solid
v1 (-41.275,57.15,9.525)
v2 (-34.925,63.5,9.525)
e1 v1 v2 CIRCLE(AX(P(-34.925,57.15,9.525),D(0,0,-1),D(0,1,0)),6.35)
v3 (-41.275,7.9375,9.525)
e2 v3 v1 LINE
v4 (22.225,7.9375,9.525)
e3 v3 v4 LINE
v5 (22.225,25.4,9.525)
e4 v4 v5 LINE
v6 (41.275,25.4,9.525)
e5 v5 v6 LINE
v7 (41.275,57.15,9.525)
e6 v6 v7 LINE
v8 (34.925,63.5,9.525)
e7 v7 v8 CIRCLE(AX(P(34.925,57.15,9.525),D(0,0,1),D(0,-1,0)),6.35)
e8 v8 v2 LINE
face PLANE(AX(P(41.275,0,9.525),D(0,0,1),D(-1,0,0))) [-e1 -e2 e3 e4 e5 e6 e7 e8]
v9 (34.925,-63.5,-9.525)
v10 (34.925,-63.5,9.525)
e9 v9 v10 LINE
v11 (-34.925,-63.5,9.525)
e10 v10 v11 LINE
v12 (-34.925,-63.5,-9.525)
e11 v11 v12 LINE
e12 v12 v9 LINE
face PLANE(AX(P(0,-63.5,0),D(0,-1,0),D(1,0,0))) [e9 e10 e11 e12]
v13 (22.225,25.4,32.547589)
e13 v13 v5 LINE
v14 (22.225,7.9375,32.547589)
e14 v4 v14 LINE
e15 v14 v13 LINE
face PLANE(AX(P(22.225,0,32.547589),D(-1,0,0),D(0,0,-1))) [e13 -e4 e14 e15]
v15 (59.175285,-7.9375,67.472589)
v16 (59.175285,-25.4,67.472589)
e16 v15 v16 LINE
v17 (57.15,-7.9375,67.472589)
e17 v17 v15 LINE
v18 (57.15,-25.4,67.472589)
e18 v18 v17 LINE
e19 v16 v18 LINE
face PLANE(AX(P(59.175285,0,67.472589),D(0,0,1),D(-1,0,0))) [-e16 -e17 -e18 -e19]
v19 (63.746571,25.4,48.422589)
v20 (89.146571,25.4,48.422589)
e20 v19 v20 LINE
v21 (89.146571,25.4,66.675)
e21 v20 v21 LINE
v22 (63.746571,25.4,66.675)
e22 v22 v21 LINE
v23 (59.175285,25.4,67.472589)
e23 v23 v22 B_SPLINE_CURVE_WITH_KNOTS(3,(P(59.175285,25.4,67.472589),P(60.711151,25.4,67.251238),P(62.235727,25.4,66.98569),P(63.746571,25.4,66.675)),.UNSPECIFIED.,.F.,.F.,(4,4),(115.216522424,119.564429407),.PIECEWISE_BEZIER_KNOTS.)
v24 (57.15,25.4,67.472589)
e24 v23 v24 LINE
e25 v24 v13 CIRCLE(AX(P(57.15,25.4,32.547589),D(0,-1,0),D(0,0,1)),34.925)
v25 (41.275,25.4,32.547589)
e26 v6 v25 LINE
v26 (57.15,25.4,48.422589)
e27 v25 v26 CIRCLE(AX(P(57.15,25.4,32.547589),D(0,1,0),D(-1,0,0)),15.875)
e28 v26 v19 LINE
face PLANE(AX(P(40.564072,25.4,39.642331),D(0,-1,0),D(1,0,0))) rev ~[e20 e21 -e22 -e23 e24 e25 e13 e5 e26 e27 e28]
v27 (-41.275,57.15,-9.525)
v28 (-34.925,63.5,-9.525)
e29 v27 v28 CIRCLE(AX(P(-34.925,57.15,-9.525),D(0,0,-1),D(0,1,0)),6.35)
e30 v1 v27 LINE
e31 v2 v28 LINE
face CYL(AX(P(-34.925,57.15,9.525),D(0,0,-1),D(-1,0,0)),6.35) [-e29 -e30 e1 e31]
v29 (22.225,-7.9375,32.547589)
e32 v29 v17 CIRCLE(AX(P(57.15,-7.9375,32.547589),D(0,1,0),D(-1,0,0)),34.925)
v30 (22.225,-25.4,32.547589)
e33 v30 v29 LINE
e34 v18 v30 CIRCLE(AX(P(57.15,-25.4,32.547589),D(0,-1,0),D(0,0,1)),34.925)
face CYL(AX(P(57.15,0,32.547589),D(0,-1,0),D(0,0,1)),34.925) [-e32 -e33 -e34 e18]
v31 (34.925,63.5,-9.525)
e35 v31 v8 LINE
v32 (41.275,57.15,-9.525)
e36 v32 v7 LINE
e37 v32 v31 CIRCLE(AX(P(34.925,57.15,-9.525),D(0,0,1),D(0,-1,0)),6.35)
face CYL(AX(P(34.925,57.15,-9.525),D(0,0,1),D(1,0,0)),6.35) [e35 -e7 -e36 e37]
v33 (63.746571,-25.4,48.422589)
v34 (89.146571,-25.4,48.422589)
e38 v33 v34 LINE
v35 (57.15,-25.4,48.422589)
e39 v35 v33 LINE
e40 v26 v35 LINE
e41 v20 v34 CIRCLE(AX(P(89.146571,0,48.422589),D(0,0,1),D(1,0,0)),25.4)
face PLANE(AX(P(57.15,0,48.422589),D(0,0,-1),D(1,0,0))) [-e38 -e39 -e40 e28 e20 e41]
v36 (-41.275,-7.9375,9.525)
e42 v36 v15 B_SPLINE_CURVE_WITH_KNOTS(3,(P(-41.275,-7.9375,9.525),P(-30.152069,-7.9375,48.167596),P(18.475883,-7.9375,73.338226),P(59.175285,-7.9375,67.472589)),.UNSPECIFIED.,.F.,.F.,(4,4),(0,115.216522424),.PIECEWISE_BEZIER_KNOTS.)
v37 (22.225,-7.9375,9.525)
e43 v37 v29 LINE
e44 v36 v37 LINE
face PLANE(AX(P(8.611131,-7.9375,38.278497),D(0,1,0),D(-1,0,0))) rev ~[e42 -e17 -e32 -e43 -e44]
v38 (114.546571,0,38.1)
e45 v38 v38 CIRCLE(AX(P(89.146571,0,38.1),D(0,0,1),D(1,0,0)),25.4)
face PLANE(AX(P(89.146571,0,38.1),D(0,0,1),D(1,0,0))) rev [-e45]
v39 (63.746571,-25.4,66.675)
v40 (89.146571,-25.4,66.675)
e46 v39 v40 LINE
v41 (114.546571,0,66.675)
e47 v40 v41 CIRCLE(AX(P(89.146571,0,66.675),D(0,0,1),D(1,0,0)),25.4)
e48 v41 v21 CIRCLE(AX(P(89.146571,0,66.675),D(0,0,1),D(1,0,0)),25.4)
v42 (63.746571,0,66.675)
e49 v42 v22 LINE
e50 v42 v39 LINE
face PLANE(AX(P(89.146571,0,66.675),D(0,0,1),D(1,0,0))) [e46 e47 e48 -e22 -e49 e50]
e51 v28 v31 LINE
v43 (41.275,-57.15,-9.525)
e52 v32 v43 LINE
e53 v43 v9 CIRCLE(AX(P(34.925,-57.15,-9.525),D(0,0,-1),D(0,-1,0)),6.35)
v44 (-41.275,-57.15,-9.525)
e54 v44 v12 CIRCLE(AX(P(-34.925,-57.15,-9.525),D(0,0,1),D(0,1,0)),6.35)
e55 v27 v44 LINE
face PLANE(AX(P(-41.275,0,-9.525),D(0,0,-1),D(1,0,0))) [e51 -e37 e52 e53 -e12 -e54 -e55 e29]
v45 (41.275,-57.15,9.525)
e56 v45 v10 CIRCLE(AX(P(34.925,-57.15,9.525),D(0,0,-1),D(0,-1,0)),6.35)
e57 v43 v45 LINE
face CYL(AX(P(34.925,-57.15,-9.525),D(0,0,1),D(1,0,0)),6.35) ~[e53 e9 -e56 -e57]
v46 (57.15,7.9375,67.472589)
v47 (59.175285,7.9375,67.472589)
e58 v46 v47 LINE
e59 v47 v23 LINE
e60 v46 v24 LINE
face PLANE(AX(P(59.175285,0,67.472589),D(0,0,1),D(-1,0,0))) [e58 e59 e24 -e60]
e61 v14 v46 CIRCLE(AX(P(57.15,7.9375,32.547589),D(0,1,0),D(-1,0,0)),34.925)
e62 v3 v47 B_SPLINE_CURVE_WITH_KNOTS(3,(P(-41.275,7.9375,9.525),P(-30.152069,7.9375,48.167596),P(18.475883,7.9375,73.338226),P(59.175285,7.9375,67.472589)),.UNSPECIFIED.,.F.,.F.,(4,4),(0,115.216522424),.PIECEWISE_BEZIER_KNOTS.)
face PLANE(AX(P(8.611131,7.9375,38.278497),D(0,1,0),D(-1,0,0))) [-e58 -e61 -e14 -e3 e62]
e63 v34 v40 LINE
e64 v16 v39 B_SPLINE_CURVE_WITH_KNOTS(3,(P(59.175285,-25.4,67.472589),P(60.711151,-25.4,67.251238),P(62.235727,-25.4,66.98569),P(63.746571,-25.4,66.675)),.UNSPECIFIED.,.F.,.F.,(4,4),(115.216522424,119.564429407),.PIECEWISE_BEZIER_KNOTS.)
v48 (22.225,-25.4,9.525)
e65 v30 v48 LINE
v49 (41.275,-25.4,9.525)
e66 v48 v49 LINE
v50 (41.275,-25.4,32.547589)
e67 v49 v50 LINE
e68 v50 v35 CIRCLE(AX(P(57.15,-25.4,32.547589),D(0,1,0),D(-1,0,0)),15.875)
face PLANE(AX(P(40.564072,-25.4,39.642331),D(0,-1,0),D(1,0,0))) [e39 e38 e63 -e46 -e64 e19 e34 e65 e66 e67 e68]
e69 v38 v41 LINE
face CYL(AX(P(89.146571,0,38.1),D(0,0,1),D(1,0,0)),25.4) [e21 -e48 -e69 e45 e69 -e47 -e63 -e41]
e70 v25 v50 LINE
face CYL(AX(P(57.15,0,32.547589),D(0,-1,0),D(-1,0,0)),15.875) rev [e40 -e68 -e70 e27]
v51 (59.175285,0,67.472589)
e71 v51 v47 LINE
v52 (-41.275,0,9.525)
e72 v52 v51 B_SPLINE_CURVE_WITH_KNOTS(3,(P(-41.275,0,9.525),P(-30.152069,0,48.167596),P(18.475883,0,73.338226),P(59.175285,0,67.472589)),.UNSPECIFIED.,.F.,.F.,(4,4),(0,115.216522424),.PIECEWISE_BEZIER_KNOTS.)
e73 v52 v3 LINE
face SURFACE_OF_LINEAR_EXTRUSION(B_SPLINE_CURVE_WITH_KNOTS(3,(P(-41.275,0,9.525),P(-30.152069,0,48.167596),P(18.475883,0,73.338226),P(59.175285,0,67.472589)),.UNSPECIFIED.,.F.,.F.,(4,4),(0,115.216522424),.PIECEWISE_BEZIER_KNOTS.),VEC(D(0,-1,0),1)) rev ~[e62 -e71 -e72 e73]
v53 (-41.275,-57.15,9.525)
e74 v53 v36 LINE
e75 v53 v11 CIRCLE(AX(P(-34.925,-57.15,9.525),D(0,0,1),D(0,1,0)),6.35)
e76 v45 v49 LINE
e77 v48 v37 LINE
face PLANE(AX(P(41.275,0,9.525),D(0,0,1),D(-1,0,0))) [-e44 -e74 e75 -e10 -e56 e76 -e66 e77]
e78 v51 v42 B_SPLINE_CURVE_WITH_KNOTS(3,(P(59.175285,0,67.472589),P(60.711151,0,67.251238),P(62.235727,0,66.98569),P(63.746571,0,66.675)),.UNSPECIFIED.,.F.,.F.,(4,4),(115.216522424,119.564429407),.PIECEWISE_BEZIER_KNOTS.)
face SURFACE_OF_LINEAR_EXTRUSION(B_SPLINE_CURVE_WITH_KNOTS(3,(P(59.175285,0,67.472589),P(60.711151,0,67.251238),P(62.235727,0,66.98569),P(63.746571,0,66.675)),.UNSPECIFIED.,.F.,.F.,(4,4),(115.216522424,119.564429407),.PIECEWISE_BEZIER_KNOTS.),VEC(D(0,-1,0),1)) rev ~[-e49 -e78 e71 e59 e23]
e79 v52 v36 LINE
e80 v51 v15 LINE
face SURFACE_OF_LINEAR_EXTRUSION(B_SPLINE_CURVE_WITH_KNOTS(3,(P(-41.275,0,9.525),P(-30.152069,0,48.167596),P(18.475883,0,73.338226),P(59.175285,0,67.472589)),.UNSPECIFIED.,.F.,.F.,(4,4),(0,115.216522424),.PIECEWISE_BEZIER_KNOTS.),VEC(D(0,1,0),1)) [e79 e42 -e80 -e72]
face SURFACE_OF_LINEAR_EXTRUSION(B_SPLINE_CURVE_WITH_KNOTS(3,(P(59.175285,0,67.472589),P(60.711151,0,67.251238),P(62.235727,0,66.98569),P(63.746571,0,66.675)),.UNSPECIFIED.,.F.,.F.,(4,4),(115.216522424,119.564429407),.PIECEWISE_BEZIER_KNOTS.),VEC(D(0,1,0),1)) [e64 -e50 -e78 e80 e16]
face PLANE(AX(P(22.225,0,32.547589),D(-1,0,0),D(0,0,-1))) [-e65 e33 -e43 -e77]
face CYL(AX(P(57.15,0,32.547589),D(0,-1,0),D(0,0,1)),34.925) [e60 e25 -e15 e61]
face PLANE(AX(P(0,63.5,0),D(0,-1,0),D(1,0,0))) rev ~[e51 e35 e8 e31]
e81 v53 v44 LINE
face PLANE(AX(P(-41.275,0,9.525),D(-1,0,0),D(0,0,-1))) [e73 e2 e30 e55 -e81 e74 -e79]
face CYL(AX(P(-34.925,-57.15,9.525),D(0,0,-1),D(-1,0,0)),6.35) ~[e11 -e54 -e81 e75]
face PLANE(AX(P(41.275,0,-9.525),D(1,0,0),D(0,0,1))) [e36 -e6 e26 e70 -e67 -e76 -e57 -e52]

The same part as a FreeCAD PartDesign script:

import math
import FreeCAD as App
import Part
import Sketcher
from FreeCAD import Vector
Q = App.Units.Quantity


def edges_at(feature, points):
    """Names of the edges that pass closest to the given points."""
    edges = feature.Shape.Edges
    near = lambda p: min(range(len(edges)), key=lambda i: edges[i].distToShape(Part.Vertex(*p))[0])
    return sorted({f"Edge{near(p) + 1}" for p in points})


def add_polygon(sketch, points):
    """Adds a closed chain of lines whose ends are joined by coincident constraints."""
    first, n = sketch.GeometryCount, len(points)
    for a, b in zip(points, points[1:] + points[:1]):
        sketch.addGeometry(Part.LineSegment(App.Vector(*a, 0), App.Vector(*b, 0)), False)
    for i in range(n):
        sketch.addConstraint(Sketcher.Constraint("Coincident", first + i, 2, first + (i + 1) % n, 1))

doc = App.newDocument("Part")
params = doc.addObject("Spreadsheet::Sheet", "Params")
for row, (alias, value) in enumerate([
    ("sketch1_width", "3.25 in"),
    ("sketch1_height", "0.75 in"),
    ("pad1_length", "5 in"),
    ("sketch2_width", "1 in"),
    ("sketch2_radius", "0.625 in"),
    ("sketch2_radius2", "1.375 in"),
    ("pad2_length", "2 in"),
    ("sketch3_width", "2.5 in"),
    ("sketch3_radius", "1.375 in"),
    ("pad3_length", "0.625 in"),
    ("sketch4_width", "1 in"),
    ("sketch4_height", "1.125 in"),
    ("revolution_angle", "360 deg"),
    ("fillet_radius", "0.25 in"),
], start=1):
    params.set(f"A{row}", alias)
    params.set(f"B{row}", "=" + value)
    params.setAlias(f"B{row}", alias)

body = doc.addObject("PartDesign::Body", "Body")

sketch1 = body.newObject("Sketcher::SketchObject", "Sketch")
sketch1.AttachmentSupport = (doc.getObject("XZ_Plane"), [""])
sketch1.MapMode = "FlatFace"
add_polygon(sketch1, [(-41, 10), (-41, -10), (41, -10), (41, 10)])
sketch1.addConstraint([
    Sketcher.Constraint("Vertical", 0),
    Sketcher.Constraint("Horizontal", 1),
    Sketcher.Constraint("Vertical", 2),
    Sketcher.Constraint("Horizontal", 3),
    Sketcher.Constraint("Symmetric", 0, 2, 2, 2, -1, 1),
    Sketcher.Constraint("DistanceX", 1, 1, 1, 2, Q("3.25 in")),
    Sketcher.Constraint("DistanceY", 0, 2, 0, 1, Q("0.75 in")),
])
sketch1.setExpression("Constraints[9]", "Params.sketch1_width")
sketch1.setExpression("Constraints[10]", "Params.sketch1_height")
pad1 = body.newObject("PartDesign::Pad", "Pad")
pad1.Profile = sketch1
pad1.setExpression("Length", "Params.pad1_length")
pad1.Midplane = True

sketch2 = body.newObject("Sketcher::SketchObject", "Sketch001")
sketch2.AttachmentSupport = (doc.getObject("XZ_Plane"), [""])
sketch2.MapMode = "FlatFace"
sketch2.addGeometry([
    Part.LineSegment(Vector(22.225, 9.525, 0), Vector(41.275, 9.525, 0)),
    Part.LineSegment(Vector(41.275, 9.525, 0), Vector(41.275, 32.547589, 0)),
    Part.ArcOfCircle(Part.Circle(Vector(57.15, 32.547589, 0), Vector(0, 0, 1), 15.875), math.radians(90), math.radians(180)),
    Part.LineSegment(Vector(57.15, 48.422589, 0), Vector(63.746571, 48.422589, 0)),
    Part.LineSegment(Vector(63.746571, 48.422589, 0), Vector(89.146571, 48.422589, 0)),
    Part.LineSegment(Vector(89.146571, 48.422589, 0), Vector(89.146571, 66.675, 0)),
    Part.LineSegment(Vector(89.146571, 66.675, 0), Vector(63.746571, 66.675, 0)),
    Part.BSplineCurve([Vector(59.175285, 67.472589, 0), Vector(60.711151, 67.251238, 0), Vector(62.235727, 66.98569, 0), Vector(63.746571, 66.675, 0)], [4, 4], [115.216522424, 119.564429407], False, 3, [1, 1, 1, 1], False),
    Part.LineSegment(Vector(59.175285, 67.472589, 0), Vector(57.15, 67.472589, 0)),
    Part.ArcOfCircle(Part.Circle(Vector(57.15, 32.547589, 0), Vector(0, 0, 1), 34.925), math.radians(90), math.radians(180)),
    Part.LineSegment(Vector(22.225, 32.547589, 0), Vector(22.225, 9.525, 0)),
], False)
sketch2.addConstraint([
    Sketcher.Constraint("Block", 7),
    Sketcher.Constraint("Coincident", 0, 2, 1, 1),
    Sketcher.Constraint("Tangent", 1, 2, 2, 2),
    Sketcher.Constraint("Tangent", 2, 1, 3, 1),
    Sketcher.Constraint("Coincident", 3, 2, 4, 1),
    Sketcher.Constraint("Coincident", 4, 2, 5, 1),
    Sketcher.Constraint("Coincident", 5, 2, 6, 1),
    Sketcher.Constraint("Coincident", 6, 2, 7, 2),
    Sketcher.Constraint("Coincident", 7, 1, 8, 1),
    Sketcher.Constraint("Tangent", 8, 2, 9, 1),
    Sketcher.Constraint("Tangent", 9, 2, 10, 1),
    Sketcher.Constraint("Coincident", 10, 2, 0, 1),
    Sketcher.Constraint("Horizontal", 0),
    Sketcher.Constraint("Vertical", 1),
    Sketcher.Constraint("Horizontal", 3),
    Sketcher.Constraint("Horizontal", 4),
    Sketcher.Constraint("Vertical", 5),
    Sketcher.Constraint("Horizontal", 6),
    Sketcher.Constraint("Horizontal", 8),
    Sketcher.Constraint("Vertical", 10),
    Sketcher.Constraint("Coincident", 9, 3, 2, 3),
    Sketcher.Constraint("Vertical", 3, 2, 6, 2),
    Sketcher.Constraint("DistanceX", 4, 1, 4, 2, Q("1 in")),
    Sketcher.Constraint("Radius", 2, Q("0.625 in")),
    Sketcher.Constraint("Radius", 9, Q("1.375 in")),
    Sketcher.Constraint("DistanceX", -1, 1, 2, 3, Q("2.25 in")),
    Sketcher.Constraint("DistanceY", -1, 1, 0, 2, Q("0.375 in")),
])
sketch2.setExpression("Constraints[22]", "Params.sketch2_width")
sketch2.setExpression("Constraints[23]", "Params.sketch2_radius")
sketch2.setExpression("Constraints[24]", "Params.sketch2_radius2")
pad2 = body.newObject("PartDesign::Pad", "Pad001")
pad2.Profile = sketch2
pad2.setExpression("Length", "Params.pad2_length")
pad2.Midplane = True

sketch3 = body.newObject("Sketcher::SketchObject", "Sketch002")
sketch3.AttachmentSupport = (doc.getObject("XZ_Plane"), [""])
sketch3.MapMode = "FlatFace"
sketch3.addGeometry([
    Part.BSplineCurve([Vector(-41.275, 9.525, 0), Vector(-30.152069, 48.167596, 0), Vector(18.475883, 73.338226, 0), Vector(59.175285, 67.472589, 0)], [4, 4], [0, 115.216522424], False, 3, [1, 1, 1, 1], False),
    Part.LineSegment(Vector(-41.275, 9.525, 0), Vector(22.225, 9.525, 0)),
    Part.LineSegment(Vector(22.225, 9.525, 0), Vector(22.225, 32.547589, 0)),
    Part.ArcOfCircle(Part.Circle(Vector(57.15, 32.547589, 0), Vector(0, 0, 1), 34.925), math.radians(90), math.radians(180)),
    Part.LineSegment(Vector(57.15, 67.472589, 0), Vector(59.175285, 67.472589, 0)),
], False)
sketch3.addConstraint([
    Sketcher.Constraint("Block", 0),
    Sketcher.Constraint("Coincident", 0, 1, 1, 1),
    Sketcher.Constraint("Coincident", 1, 2, 2, 1),
    Sketcher.Constraint("Tangent", 2, 2, 3, 2),
    Sketcher.Constraint("Tangent", 3, 1, 4, 1),
    Sketcher.Constraint("Coincident", 4, 2, 0, 2),
    Sketcher.Constraint("Horizontal", 1),
    Sketcher.Constraint("Vertical", 2),
    Sketcher.Constraint("Horizontal", 4),
    Sketcher.Constraint("DistanceX", 1, 1, 1, 2, Q("2.5 in")),
    Sketcher.Constraint("Radius", 3, Q("1.375 in")),
])
sketch3.setExpression("Constraints[9]", "Params.sketch3_width")
sketch3.setExpression("Constraints[10]", "Params.sketch3_radius")
pad3 = body.newObject("PartDesign::Pad", "Pad002")
pad3.Profile = sketch3
pad3.setExpression("Length", "Params.pad3_length")
pad3.Midplane = True

sketch4 = body.newObject("Sketcher::SketchObject", "Sketch003")
sketch4.AttachmentSupport = (doc.getObject("XZ_Plane"), [""])
sketch4.MapMode = "FlatFace"
add_polygon(sketch4, [(115, 67), (89, 67), (89, 38), (115, 38)])
sketch4.addGeometry(Part.LineSegment(Vector(89, 38, 0), Vector(89, 67, 0)), True)
sketch4.addConstraint([
    Sketcher.Constraint("Horizontal", 0),
    Sketcher.Constraint("Vertical", 1),
    Sketcher.Constraint("Horizontal", 2),
    Sketcher.Constraint("Vertical", 3),
    Sketcher.Constraint("Vertical", 4),
    Sketcher.Constraint("Coincident", 4, 1, 1, 2),
    Sketcher.Constraint("Horizontal", 3, 2, 4, 2),
    Sketcher.Constraint("DistanceX", 0, 2, 0, 1, Q("1 in")),
    Sketcher.Constraint("DistanceY", -1, 1, 1, 2, Q("1.5 in")),
    Sketcher.Constraint("DistanceY", 1, 2, 1, 1, Q("1.125 in")),
    Sketcher.Constraint("DistanceX", -1, 1, 0, 2, Q("89.146571 mm")),
])
sketch4.setExpression("Constraints[11]", "Params.sketch4_width")
sketch4.setExpression("Constraints[13]", "Params.sketch4_height")
revolution = body.newObject("PartDesign::Revolution", "Revolution")
revolution.Profile = sketch4
revolution.ReferenceAxis = (sketch4, ["Axis0"])
revolution.setExpression("Angle", "Params.revolution_angle")
doc.recompute()

fillet = body.newObject("PartDesign::Fillet", "Fillet")
fillet.Base = (revolution, edges_at(revolution, [
    (41.275, -63.5, 0),
    (-41.275, -63.5, 0),
    (41.275, 63.5, 0),
    (-41.275, 63.5, 0),
]))
fillet.setExpression("Radius", "Params.fillet_radius")

doc.recompute()
